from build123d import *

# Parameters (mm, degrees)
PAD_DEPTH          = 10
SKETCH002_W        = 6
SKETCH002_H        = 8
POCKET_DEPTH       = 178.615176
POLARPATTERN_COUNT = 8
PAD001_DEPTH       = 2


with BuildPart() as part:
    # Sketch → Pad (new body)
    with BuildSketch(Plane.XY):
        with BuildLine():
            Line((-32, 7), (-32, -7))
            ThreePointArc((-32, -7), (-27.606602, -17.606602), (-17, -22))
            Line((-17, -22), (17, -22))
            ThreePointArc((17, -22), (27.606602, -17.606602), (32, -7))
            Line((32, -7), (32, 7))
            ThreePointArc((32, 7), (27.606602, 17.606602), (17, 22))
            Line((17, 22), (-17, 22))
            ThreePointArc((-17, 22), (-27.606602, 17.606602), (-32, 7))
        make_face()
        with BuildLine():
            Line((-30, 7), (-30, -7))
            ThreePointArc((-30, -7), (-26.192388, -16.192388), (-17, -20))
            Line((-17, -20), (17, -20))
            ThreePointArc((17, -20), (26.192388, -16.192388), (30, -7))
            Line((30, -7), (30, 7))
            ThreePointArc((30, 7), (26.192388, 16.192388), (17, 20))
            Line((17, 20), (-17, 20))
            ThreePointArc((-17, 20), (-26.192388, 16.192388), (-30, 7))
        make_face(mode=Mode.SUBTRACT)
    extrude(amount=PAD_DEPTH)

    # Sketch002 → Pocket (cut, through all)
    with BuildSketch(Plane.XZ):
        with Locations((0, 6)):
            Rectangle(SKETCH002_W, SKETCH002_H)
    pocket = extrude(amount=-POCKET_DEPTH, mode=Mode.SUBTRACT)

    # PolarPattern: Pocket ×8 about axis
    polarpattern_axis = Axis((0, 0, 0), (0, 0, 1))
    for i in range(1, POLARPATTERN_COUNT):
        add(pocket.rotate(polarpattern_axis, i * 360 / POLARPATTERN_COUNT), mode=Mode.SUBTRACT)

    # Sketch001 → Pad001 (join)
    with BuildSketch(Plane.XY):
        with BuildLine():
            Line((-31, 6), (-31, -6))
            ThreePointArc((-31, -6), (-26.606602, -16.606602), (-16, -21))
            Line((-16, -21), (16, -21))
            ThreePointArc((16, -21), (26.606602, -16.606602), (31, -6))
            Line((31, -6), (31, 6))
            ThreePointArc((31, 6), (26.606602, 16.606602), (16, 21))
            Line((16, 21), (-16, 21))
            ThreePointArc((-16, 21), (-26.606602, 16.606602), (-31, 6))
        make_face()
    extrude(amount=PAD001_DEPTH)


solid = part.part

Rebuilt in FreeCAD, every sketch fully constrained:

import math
import FreeCAD as App
import Part
import Sketcher

doc = App.newDocument("Part")
body = doc.addObject("PartDesign::Body", "Body")

sketch1 = doc.addObject("Sketcher::SketchObject", "Sketch")
body.addObject(sketch1)
sketch1.AttachmentSupport = (doc.XY_Plane, [""])
sketch1.MapMode = "FlatFace"
sketch1.addGeometry(Part.LineSegment(App.Vector(-32, 7, 0), App.Vector(-32, -7, 0)), False)
sketch1.addGeometry(Part.ArcOfCircle(Part.Circle(App.Vector(-17.000001, -7.000001, 0), App.Vector(0, 0, 1), 14.999999), math.radians(179.999996), math.radians(270.000004)), False)
sketch1.addGeometry(Part.LineSegment(App.Vector(-17, -22, 0), App.Vector(17, -22, 0)), False)
sketch1.addGeometry(Part.ArcOfCircle(Part.Circle(App.Vector(17.000001, -7.000001, 0), App.Vector(0, 0, 1), 14.999999), math.radians(-90.000004), math.radians(0.000004)), False)
sketch1.addGeometry(Part.LineSegment(App.Vector(32, -7, 0), App.Vector(32, 7, 0)), False)
sketch1.addGeometry(Part.ArcOfCircle(Part.Circle(App.Vector(17.000001, 7.000001, 0), App.Vector(0, 0, 1), 14.999999), math.radians(-0.000004), math.radians(90.000004)), False)
sketch1.addGeometry(Part.LineSegment(App.Vector(17, 22, 0), App.Vector(-17, 22, 0)), False)
sketch1.addGeometry(Part.ArcOfCircle(Part.Circle(App.Vector(-17.000001, 7.000001, 0), App.Vector(0, 0, 1), 14.999999), math.radians(89.999996), math.radians(180.000004)), False)
sketch1.addGeometry(Part.LineSegment(App.Vector(-30, -7, 0), App.Vector(-30, 7, 0)), False)
sketch1.addGeometry(Part.ArcOfCircle(Part.Circle(App.Vector(-16.999999, 6.999999, 0), App.Vector(0, 0, 1), 13.000001), math.radians(90.000002), math.radians(179.999998)), False)
sketch1.addGeometry(Part.LineSegment(App.Vector(-17, 20, 0), App.Vector(17, 20, 0)), False)
sketch1.addGeometry(Part.ArcOfCircle(Part.Circle(App.Vector(16.999999, 6.999999, 0), App.Vector(0, 0, 1), 13.000001), math.radians(0.000002), math.radians(89.999998)), False)
sketch1.addGeometry(Part.LineSegment(App.Vector(30, 7, 0), App.Vector(30, -7, 0)), False)
sketch1.addGeometry(Part.ArcOfCircle(Part.Circle(App.Vector(16.999999, -6.999999, 0), App.Vector(0, 0, 1), 13.000001), math.radians(-89.999998), math.radians(-0.000002)), False)
sketch1.addGeometry(Part.LineSegment(App.Vector(17, -20, 0), App.Vector(-17, -20, 0)), False)
sketch1.addGeometry(Part.ArcOfCircle(Part.Circle(App.Vector(-16.999999, -6.999999, 0), App.Vector(0, 0, 1), 13.000001), math.radians(-179.999998), math.radians(-90.000002)), False)
sketch1.addConstraint(Sketcher.Constraint("Tangent", 0, 2, 1, 1))
sketch1.addConstraint(Sketcher.Constraint("Tangent", 1, 2, 2, 1))
sketch1.addConstraint(Sketcher.Constraint("Tangent", 2, 2, 3, 1))
sketch1.addConstraint(Sketcher.Constraint("Tangent", 3, 2, 4, 1))
sketch1.addConstraint(Sketcher.Constraint("Tangent", 4, 2, 5, 1))
sketch1.addConstraint(Sketcher.Constraint("Tangent", 5, 2, 6, 1))
sketch1.addConstraint(Sketcher.Constraint("Tangent", 6, 2, 7, 1))
sketch1.addConstraint(Sketcher.Constraint("Tangent", 7, 2, 0, 1))
sketch1.addConstraint(Sketcher.Constraint("Tangent", 8, 2, 9, 2))
sketch1.addConstraint(Sketcher.Constraint("Tangent", 9, 1, 10, 1))
sketch1.addConstraint(Sketcher.Constraint("Tangent", 10, 2, 11, 2))
sketch1.addConstraint(Sketcher.Constraint("Tangent", 11, 1, 12, 1))
sketch1.addConstraint(Sketcher.Constraint("Tangent", 12, 2, 13, 2))
sketch1.addConstraint(Sketcher.Constraint("Tangent", 13, 1, 14, 1))
sketch1.addConstraint(Sketcher.Constraint("Tangent", 14, 2, 15, 2))
sketch1.addConstraint(Sketcher.Constraint("Tangent", 15, 1, 8, 1))
sketch1.addConstraint(Sketcher.Constraint("Vertical", 0))
sketch1.addConstraint(Sketcher.Constraint("Horizontal", 2))
sketch1.addConstraint(Sketcher.Constraint("Vertical", 4))
sketch1.addConstraint(Sketcher.Constraint("Horizontal", 6))
sketch1.addConstraint(Sketcher.Constraint("Vertical", 8))
sketch1.addConstraint(Sketcher.Constraint("Horizontal", 10))
sketch1.addConstraint(Sketcher.Constraint("Vertical", 12))
sketch1.addConstraint(Sketcher.Constraint("Horizontal", 14))
sketch1.addConstraint(Sketcher.Constraint("Coincident", 9, 3, 7, 3))
sketch1.addConstraint(Sketcher.Constraint("Coincident", 11, 3, 5, 3))
sketch1.addConstraint(Sketcher.Constraint("Coincident", 13, 3, 3, 3))
sketch1.addConstraint(Sketcher.Constraint("Equal", 1, 3))
sketch1.addConstraint(Sketcher.Constraint("Equal", 3, 5))
sketch1.addConstraint(Sketcher.Constraint("Equal", 5, 7))
sketch1.addConstraint(Sketcher.Constraint("Equal", 13, 15))
sketch1.addConstraint(Sketcher.Constraint("Symmetric", 1, 3, 5, 3, -1, 1))
sketch1.addConstraint(Sketcher.Constraint("Radius", 1, 14.999999))
sketch1.addConstraint(Sketcher.Constraint("Radius", 9, 13.000001))
sketch1.addConstraint(Sketcher.Constraint("DistanceX", 2, 1, 2, 2, 34.0))
sketch1.addConstraint(Sketcher.Constraint("DistanceY", 0, 2, 0, 1, 14.0))
pad1 = doc.addObject("PartDesign::Pad", "Pad")
body.addObject(pad1)
pad1.Profile = sketch1
pad1.Length = 10

sketch2 = doc.addObject("Sketcher::SketchObject", "Sketch001")
body.addObject(sketch2)
sketch2.AttachmentSupport = (doc.XZ_Plane, [""])
sketch2.MapMode = "FlatFace"
sketch2.addGeometry(Part.LineSegment(App.Vector(-3, 10, 0), App.Vector(-3, 2, 0)), False)
sketch2.addGeometry(Part.LineSegment(App.Vector(-3, 2, 0), App.Vector(3, 2, 0)), False)
sketch2.addGeometry(Part.LineSegment(App.Vector(3, 2, 0), App.Vector(3, 10, 0)), False)
sketch2.addGeometry(Part.LineSegment(App.Vector(3, 10, 0), App.Vector(-3, 10, 0)), False)
sketch2.addConstraint(Sketcher.Constraint("Coincident", 0, 2, 1, 1))
sketch2.addConstraint(Sketcher.Constraint("Coincident", 1, 2, 2, 1))
sketch2.addConstraint(Sketcher.Constraint("Coincident", 2, 2, 3, 1))
sketch2.addConstraint(Sketcher.Constraint("Coincident", 3, 2, 0, 1))
sketch2.addConstraint(Sketcher.Constraint("Vertical", 0))
sketch2.addConstraint(Sketcher.Constraint("Horizontal", 1))
sketch2.addConstraint(Sketcher.Constraint("Vertical", 2))
sketch2.addConstraint(Sketcher.Constraint("Horizontal", 3))
sketch2.addConstraint(Sketcher.Constraint("DistanceX", 1, 1, 1, 2, 6.0))
sketch2.addConstraint(Sketcher.Constraint("DistanceY", 0, 2, 0, 1, 8.0))
sketch2.addConstraint(Sketcher.Constraint("DistanceX", 0, 2, -1, 1, 3.0))
sketch2.addConstraint(Sketcher.Constraint("DistanceY", -1, 1, 0, 2, 2.0))
pocket1 = doc.addObject("PartDesign::Pocket", "Pocket")
body.addObject(pocket1)
pocket1.Profile = sketch2
pocket1.Type = "ThroughAll"
doc.recompute()

polarpattern = doc.addObject("PartDesign::PolarPattern", "PolarPattern")
body.addObject(polarpattern)
polarpattern.Originals = [pocket1]
polarpattern.Axis = (doc.Z_Axis, [""])
polarpattern.Angle = 360
polarpattern.Occurrences = 8
body.Tip = polarpattern

sketch3 = doc.addObject("Sketcher::SketchObject", "Sketch002")
body.addObject(sketch3)
sketch3.AttachmentSupport = (doc.XY_Plane, [""])
sketch3.MapMode = "FlatFace"
sketch3.addGeometry(Part.LineSegment(App.Vector(-31, 6, 0), App.Vector(-31, -6, 0)), False)
sketch3.addGeometry(Part.ArcOfCircle(Part.Circle(App.Vector(-16.000001, -6.000001, 0), App.Vector(0, 0, 1), 14.999999), math.radians(179.999996), math.radians(270.000004)), False)
sketch3.addGeometry(Part.LineSegment(App.Vector(-16, -21, 0), App.Vector(16, -21, 0)), False)
sketch3.addGeometry(Part.ArcOfCircle(Part.Circle(App.Vector(16.000001, -6.000001, 0), App.Vector(0, 0, 1), 14.999999), math.radians(-90.000004), math.radians(0.000004)), False)
sketch3.addGeometry(Part.LineSegment(App.Vector(31, -6, 0), App.Vector(31, 6, 0)), False)
sketch3.addGeometry(Part.ArcOfCircle(Part.Circle(App.Vector(16.000001, 6.000001, 0), App.Vector(0, 0, 1), 14.999999), math.radians(-0.000004), math.radians(90.000004)), False)
sketch3.addGeometry(Part.LineSegment(App.Vector(16, 21, 0), App.Vector(-16, 21, 0)), False)
sketch3.addGeometry(Part.ArcOfCircle(Part.Circle(App.Vector(-16.000001, 6.000001, 0), App.Vector(0, 0, 1), 14.999999), math.radians(89.999996), math.radians(180.000004)), False)
sketch3.addConstraint(Sketcher.Constraint("Tangent", 0, 2, 1, 1))
sketch3.addConstraint(Sketcher.Constraint("Tangent", 1, 2, 2, 1))
sketch3.addConstraint(Sketcher.Constraint("Tangent", 2, 2, 3, 1))
sketch3.addConstraint(Sketcher.Constraint("Tangent", 3, 2, 4, 1))
sketch3.addConstraint(Sketcher.Constraint("Tangent", 4, 2, 5, 1))
sketch3.addConstraint(Sketcher.Constraint("Tangent", 5, 2, 6, 1))
sketch3.addConstraint(Sketcher.Constraint("Tangent", 6, 2, 7, 1))
sketch3.addConstraint(Sketcher.Constraint("Tangent", 7, 2, 0, 1))
sketch3.addConstraint(Sketcher.Constraint("Vertical", 0))
sketch3.addConstraint(Sketcher.Constraint("Horizontal", 2))
sketch3.addConstraint(Sketcher.Constraint("Vertical", 4))
sketch3.addConstraint(Sketcher.Constraint("Horizontal", 6))
sketch3.addConstraint(Sketcher.Constraint("Equal", 1, 3))
sketch3.addConstraint(Sketcher.Constraint("Equal", 3, 5))
sketch3.addConstraint(Sketcher.Constraint("Equal", 5, 7))
sketch3.addConstraint(Sketcher.Constraint("Symmetric", 1, 3, 5, 3, -1, 1))
sketch3.addConstraint(Sketcher.Constraint("Radius", 1, 14.999999))
sketch3.addConstraint(Sketcher.Constraint("DistanceX", 2, 1, 2, 2, 32.0))
sketch3.addConstraint(Sketcher.Constraint("DistanceY", 0, 2, 0, 1, 12.0))
pad2 = doc.addObject("PartDesign::Pad", "Pad001")
body.addObject(pad2)
pad2.Profile = sketch3
pad2.Length = 2

doc.recompute()
